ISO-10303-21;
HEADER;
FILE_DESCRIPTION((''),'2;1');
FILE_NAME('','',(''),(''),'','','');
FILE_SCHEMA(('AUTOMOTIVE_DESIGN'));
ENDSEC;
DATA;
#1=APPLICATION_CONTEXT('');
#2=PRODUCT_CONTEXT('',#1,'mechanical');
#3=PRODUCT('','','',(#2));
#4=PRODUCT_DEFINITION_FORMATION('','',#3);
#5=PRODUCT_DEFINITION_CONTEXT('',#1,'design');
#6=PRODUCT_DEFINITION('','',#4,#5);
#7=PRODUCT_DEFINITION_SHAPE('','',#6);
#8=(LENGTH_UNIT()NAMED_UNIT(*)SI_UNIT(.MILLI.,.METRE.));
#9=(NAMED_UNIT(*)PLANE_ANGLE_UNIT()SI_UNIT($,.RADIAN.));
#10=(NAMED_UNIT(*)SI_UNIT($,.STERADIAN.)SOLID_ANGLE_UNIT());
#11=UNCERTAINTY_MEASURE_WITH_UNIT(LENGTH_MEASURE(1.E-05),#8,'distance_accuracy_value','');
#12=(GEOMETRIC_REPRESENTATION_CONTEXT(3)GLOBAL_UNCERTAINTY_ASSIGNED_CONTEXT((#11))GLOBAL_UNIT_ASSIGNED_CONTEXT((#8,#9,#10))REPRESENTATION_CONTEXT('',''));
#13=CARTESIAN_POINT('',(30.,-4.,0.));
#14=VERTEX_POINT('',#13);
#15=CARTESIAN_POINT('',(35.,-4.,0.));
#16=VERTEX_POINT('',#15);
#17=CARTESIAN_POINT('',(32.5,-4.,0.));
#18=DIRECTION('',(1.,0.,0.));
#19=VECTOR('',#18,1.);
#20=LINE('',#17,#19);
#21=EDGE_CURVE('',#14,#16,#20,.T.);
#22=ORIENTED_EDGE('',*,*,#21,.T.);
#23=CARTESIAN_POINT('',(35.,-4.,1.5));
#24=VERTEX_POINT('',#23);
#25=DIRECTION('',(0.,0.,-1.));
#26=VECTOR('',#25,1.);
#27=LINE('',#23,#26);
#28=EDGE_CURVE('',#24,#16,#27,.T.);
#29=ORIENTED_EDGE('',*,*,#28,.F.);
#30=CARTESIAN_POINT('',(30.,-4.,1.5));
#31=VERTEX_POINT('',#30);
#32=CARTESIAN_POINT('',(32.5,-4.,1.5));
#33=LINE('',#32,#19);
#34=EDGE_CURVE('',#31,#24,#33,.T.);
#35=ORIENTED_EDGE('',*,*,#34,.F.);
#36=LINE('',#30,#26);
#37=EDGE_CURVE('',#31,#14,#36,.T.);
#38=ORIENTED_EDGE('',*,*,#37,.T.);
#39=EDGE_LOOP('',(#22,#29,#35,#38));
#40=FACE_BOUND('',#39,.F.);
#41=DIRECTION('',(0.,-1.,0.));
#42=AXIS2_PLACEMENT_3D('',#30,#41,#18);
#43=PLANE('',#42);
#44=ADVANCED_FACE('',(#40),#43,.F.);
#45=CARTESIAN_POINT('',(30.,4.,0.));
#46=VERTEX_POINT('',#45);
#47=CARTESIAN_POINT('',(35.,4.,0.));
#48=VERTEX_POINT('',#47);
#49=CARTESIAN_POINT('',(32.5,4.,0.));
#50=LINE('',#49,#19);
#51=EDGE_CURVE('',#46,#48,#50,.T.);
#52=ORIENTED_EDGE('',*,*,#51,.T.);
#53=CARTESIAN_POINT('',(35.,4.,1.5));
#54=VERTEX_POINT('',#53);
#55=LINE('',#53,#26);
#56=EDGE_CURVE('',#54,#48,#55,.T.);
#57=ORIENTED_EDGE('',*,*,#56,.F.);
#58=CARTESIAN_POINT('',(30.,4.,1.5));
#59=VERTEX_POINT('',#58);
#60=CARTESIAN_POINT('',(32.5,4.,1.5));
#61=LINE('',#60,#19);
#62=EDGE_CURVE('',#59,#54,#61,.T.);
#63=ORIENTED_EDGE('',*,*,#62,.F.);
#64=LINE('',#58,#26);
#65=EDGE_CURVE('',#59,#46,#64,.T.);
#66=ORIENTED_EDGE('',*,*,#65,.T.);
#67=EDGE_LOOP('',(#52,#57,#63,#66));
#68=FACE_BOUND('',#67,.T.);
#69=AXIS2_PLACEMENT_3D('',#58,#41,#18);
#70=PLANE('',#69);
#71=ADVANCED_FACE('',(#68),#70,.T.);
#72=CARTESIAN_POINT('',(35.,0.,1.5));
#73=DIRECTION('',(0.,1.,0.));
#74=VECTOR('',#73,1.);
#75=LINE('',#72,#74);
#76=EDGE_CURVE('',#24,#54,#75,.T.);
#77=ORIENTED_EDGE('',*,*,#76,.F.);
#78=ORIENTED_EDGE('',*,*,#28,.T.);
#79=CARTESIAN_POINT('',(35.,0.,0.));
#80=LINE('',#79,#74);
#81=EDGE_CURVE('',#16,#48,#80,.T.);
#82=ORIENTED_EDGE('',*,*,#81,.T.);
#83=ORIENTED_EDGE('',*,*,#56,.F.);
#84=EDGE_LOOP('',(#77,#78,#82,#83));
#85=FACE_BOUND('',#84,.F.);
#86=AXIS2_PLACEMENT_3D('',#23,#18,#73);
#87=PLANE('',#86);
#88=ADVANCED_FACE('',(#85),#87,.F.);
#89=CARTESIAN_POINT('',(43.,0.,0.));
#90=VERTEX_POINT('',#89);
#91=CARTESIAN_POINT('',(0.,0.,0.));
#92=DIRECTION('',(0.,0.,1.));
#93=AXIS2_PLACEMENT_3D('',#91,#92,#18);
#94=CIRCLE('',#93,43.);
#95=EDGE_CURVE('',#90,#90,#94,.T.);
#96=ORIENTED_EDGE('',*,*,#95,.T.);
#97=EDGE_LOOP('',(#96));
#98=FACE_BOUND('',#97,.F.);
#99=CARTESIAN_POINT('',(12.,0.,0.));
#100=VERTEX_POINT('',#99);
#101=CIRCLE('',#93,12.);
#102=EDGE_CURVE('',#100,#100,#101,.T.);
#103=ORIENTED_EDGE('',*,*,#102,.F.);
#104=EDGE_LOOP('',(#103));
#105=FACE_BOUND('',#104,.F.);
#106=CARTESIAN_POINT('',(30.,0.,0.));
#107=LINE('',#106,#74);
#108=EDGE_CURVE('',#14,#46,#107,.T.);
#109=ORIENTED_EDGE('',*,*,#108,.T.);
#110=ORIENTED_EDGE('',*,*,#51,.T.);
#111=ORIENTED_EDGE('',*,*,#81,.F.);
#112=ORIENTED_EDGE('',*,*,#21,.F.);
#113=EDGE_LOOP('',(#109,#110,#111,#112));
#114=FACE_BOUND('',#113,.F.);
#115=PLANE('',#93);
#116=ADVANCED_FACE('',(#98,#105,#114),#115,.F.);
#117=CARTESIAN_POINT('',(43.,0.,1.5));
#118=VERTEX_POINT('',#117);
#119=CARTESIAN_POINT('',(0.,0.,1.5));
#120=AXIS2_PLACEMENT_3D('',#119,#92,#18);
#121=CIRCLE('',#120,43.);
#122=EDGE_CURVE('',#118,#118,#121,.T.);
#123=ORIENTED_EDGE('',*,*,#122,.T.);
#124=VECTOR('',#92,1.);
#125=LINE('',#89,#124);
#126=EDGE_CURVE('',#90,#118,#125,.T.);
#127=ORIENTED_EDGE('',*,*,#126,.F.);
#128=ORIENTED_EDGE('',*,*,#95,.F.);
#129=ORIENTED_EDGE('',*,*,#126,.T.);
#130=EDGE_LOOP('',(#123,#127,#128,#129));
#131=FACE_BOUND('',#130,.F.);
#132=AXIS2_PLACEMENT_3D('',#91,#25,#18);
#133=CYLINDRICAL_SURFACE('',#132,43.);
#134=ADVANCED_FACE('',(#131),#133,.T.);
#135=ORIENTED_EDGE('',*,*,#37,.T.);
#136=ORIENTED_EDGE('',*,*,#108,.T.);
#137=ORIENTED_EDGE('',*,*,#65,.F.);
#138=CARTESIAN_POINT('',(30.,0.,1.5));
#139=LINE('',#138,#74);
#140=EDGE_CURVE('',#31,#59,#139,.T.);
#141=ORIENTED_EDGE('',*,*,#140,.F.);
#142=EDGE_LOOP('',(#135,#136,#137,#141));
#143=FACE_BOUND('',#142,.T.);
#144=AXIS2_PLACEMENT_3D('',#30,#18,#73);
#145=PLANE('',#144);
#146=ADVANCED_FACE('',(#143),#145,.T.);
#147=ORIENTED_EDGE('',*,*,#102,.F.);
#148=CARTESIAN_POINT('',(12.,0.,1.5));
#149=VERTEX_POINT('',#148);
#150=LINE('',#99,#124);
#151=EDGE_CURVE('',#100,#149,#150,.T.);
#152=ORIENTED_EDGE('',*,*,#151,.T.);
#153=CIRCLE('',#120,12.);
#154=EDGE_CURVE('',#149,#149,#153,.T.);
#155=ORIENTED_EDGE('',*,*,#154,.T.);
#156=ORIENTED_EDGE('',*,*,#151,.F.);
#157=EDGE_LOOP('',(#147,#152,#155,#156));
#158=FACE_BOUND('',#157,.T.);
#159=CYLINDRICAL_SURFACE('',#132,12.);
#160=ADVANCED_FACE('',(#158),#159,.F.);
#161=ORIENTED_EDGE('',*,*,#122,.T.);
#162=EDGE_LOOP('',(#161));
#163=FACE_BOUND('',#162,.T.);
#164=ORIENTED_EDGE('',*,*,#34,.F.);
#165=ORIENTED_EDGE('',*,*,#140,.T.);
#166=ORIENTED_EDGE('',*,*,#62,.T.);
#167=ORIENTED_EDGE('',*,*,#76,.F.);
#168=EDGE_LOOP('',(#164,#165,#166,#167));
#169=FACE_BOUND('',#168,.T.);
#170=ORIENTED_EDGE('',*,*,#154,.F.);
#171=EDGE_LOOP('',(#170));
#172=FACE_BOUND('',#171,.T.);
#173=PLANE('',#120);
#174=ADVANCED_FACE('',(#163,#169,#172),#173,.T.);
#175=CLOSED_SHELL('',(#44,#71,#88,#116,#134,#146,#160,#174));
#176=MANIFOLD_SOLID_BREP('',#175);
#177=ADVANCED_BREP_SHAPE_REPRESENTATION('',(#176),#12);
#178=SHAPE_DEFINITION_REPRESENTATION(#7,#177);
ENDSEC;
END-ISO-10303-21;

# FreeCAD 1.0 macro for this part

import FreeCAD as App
import Part
import Sketcher
Q = App.Units.Quantity

doc = App.newDocument("Part")
body = doc.addObject("PartDesign::Body", "Body")

# Sketch on XY plane
sketch1 = doc.addObject("Sketcher::SketchObject", "Sketch")
body.addObject(sketch1)
sketch1.AttachmentSupport = (doc.XY_Plane, [""])
sketch1.MapMode = "FlatFace"
sketch1.addGeometry([
    Part.Circle(App.Vector(0, 0, 0), App.Vector(0, 0, 1), 43),
    Part.Circle(App.Vector(0, 0, 0), App.Vector(0, 0, 1), 12),
], False)
sketch1.addConstraint([
    Sketcher.Constraint("Coincident", 0, 3, -1, 1),
    Sketcher.Constraint("Coincident", 1, 3, -1, 1),
    Sketcher.Constraint("Diameter", 0, Q("86 mm")),
    Sketcher.Constraint("Diameter", 1, Q("24 mm")),
])
pad1 = doc.addObject("PartDesign::Pad", "Pad")
body.addObject(pad1)
pad1.Profile = sketch1
pad1.Length = 1.5

# Sketch on XY plane
sketch2 = doc.addObject("Sketcher::SketchObject", "Sketch001")
body.addObject(sketch2)
sketch2.AttachmentSupport = (doc.XY_Plane, [""])
sketch2.MapMode = "FlatFace"
sketch2.AttachmentOffset = App.Placement(App.Vector(0, 0, 1.5), App.Rotation())
sketch2.addGeometry([
    Part.LineSegment(App.Vector(30, 4, 0), App.Vector(30, -4, 0)),
    Part.LineSegment(App.Vector(30, -4, 0), App.Vector(35, -4, 0)),
    Part.LineSegment(App.Vector(35, -4, 0), App.Vector(35, 4, 0)),
    Part.LineSegment(App.Vector(35, 4, 0), App.Vector(30, 4, 0)),
], False)
sketch2.addConstraint([
    Sketcher.Constraint("Coincident", 0, 2, 1, 1),
    Sketcher.Constraint("Coincident", 1, 2, 2, 1),
    Sketcher.Constraint("Coincident", 2, 2, 3, 1),
    Sketcher.Constraint("Coincident", 3, 2, 0, 1),
    Sketcher.Constraint("Vertical", 0),
    Sketcher.Constraint("Horizontal", 1),
    Sketcher.Constraint("Vertical", 2),
    Sketcher.Constraint("Horizontal", 3),
    Sketcher.Constraint("DistanceX", 1, 1, 1, 2, Q("5 mm")),
    Sketcher.Constraint("DistanceY", 0, 2, 0, 1, Q("8 mm")),
    Sketcher.Constraint("DistanceX", -1, 1, 0, 2, Q("30 mm")),
    Sketcher.Constraint("DistanceY", 0, 2, -1, 1, Q("4 mm")),
])
pocket1 = doc.addObject("PartDesign::Pocket", "Pocket")
body.addObject(pocket1)
pocket1.Profile = sketch2
pocket1.Type = "ThroughAll"

doc.recompute()
